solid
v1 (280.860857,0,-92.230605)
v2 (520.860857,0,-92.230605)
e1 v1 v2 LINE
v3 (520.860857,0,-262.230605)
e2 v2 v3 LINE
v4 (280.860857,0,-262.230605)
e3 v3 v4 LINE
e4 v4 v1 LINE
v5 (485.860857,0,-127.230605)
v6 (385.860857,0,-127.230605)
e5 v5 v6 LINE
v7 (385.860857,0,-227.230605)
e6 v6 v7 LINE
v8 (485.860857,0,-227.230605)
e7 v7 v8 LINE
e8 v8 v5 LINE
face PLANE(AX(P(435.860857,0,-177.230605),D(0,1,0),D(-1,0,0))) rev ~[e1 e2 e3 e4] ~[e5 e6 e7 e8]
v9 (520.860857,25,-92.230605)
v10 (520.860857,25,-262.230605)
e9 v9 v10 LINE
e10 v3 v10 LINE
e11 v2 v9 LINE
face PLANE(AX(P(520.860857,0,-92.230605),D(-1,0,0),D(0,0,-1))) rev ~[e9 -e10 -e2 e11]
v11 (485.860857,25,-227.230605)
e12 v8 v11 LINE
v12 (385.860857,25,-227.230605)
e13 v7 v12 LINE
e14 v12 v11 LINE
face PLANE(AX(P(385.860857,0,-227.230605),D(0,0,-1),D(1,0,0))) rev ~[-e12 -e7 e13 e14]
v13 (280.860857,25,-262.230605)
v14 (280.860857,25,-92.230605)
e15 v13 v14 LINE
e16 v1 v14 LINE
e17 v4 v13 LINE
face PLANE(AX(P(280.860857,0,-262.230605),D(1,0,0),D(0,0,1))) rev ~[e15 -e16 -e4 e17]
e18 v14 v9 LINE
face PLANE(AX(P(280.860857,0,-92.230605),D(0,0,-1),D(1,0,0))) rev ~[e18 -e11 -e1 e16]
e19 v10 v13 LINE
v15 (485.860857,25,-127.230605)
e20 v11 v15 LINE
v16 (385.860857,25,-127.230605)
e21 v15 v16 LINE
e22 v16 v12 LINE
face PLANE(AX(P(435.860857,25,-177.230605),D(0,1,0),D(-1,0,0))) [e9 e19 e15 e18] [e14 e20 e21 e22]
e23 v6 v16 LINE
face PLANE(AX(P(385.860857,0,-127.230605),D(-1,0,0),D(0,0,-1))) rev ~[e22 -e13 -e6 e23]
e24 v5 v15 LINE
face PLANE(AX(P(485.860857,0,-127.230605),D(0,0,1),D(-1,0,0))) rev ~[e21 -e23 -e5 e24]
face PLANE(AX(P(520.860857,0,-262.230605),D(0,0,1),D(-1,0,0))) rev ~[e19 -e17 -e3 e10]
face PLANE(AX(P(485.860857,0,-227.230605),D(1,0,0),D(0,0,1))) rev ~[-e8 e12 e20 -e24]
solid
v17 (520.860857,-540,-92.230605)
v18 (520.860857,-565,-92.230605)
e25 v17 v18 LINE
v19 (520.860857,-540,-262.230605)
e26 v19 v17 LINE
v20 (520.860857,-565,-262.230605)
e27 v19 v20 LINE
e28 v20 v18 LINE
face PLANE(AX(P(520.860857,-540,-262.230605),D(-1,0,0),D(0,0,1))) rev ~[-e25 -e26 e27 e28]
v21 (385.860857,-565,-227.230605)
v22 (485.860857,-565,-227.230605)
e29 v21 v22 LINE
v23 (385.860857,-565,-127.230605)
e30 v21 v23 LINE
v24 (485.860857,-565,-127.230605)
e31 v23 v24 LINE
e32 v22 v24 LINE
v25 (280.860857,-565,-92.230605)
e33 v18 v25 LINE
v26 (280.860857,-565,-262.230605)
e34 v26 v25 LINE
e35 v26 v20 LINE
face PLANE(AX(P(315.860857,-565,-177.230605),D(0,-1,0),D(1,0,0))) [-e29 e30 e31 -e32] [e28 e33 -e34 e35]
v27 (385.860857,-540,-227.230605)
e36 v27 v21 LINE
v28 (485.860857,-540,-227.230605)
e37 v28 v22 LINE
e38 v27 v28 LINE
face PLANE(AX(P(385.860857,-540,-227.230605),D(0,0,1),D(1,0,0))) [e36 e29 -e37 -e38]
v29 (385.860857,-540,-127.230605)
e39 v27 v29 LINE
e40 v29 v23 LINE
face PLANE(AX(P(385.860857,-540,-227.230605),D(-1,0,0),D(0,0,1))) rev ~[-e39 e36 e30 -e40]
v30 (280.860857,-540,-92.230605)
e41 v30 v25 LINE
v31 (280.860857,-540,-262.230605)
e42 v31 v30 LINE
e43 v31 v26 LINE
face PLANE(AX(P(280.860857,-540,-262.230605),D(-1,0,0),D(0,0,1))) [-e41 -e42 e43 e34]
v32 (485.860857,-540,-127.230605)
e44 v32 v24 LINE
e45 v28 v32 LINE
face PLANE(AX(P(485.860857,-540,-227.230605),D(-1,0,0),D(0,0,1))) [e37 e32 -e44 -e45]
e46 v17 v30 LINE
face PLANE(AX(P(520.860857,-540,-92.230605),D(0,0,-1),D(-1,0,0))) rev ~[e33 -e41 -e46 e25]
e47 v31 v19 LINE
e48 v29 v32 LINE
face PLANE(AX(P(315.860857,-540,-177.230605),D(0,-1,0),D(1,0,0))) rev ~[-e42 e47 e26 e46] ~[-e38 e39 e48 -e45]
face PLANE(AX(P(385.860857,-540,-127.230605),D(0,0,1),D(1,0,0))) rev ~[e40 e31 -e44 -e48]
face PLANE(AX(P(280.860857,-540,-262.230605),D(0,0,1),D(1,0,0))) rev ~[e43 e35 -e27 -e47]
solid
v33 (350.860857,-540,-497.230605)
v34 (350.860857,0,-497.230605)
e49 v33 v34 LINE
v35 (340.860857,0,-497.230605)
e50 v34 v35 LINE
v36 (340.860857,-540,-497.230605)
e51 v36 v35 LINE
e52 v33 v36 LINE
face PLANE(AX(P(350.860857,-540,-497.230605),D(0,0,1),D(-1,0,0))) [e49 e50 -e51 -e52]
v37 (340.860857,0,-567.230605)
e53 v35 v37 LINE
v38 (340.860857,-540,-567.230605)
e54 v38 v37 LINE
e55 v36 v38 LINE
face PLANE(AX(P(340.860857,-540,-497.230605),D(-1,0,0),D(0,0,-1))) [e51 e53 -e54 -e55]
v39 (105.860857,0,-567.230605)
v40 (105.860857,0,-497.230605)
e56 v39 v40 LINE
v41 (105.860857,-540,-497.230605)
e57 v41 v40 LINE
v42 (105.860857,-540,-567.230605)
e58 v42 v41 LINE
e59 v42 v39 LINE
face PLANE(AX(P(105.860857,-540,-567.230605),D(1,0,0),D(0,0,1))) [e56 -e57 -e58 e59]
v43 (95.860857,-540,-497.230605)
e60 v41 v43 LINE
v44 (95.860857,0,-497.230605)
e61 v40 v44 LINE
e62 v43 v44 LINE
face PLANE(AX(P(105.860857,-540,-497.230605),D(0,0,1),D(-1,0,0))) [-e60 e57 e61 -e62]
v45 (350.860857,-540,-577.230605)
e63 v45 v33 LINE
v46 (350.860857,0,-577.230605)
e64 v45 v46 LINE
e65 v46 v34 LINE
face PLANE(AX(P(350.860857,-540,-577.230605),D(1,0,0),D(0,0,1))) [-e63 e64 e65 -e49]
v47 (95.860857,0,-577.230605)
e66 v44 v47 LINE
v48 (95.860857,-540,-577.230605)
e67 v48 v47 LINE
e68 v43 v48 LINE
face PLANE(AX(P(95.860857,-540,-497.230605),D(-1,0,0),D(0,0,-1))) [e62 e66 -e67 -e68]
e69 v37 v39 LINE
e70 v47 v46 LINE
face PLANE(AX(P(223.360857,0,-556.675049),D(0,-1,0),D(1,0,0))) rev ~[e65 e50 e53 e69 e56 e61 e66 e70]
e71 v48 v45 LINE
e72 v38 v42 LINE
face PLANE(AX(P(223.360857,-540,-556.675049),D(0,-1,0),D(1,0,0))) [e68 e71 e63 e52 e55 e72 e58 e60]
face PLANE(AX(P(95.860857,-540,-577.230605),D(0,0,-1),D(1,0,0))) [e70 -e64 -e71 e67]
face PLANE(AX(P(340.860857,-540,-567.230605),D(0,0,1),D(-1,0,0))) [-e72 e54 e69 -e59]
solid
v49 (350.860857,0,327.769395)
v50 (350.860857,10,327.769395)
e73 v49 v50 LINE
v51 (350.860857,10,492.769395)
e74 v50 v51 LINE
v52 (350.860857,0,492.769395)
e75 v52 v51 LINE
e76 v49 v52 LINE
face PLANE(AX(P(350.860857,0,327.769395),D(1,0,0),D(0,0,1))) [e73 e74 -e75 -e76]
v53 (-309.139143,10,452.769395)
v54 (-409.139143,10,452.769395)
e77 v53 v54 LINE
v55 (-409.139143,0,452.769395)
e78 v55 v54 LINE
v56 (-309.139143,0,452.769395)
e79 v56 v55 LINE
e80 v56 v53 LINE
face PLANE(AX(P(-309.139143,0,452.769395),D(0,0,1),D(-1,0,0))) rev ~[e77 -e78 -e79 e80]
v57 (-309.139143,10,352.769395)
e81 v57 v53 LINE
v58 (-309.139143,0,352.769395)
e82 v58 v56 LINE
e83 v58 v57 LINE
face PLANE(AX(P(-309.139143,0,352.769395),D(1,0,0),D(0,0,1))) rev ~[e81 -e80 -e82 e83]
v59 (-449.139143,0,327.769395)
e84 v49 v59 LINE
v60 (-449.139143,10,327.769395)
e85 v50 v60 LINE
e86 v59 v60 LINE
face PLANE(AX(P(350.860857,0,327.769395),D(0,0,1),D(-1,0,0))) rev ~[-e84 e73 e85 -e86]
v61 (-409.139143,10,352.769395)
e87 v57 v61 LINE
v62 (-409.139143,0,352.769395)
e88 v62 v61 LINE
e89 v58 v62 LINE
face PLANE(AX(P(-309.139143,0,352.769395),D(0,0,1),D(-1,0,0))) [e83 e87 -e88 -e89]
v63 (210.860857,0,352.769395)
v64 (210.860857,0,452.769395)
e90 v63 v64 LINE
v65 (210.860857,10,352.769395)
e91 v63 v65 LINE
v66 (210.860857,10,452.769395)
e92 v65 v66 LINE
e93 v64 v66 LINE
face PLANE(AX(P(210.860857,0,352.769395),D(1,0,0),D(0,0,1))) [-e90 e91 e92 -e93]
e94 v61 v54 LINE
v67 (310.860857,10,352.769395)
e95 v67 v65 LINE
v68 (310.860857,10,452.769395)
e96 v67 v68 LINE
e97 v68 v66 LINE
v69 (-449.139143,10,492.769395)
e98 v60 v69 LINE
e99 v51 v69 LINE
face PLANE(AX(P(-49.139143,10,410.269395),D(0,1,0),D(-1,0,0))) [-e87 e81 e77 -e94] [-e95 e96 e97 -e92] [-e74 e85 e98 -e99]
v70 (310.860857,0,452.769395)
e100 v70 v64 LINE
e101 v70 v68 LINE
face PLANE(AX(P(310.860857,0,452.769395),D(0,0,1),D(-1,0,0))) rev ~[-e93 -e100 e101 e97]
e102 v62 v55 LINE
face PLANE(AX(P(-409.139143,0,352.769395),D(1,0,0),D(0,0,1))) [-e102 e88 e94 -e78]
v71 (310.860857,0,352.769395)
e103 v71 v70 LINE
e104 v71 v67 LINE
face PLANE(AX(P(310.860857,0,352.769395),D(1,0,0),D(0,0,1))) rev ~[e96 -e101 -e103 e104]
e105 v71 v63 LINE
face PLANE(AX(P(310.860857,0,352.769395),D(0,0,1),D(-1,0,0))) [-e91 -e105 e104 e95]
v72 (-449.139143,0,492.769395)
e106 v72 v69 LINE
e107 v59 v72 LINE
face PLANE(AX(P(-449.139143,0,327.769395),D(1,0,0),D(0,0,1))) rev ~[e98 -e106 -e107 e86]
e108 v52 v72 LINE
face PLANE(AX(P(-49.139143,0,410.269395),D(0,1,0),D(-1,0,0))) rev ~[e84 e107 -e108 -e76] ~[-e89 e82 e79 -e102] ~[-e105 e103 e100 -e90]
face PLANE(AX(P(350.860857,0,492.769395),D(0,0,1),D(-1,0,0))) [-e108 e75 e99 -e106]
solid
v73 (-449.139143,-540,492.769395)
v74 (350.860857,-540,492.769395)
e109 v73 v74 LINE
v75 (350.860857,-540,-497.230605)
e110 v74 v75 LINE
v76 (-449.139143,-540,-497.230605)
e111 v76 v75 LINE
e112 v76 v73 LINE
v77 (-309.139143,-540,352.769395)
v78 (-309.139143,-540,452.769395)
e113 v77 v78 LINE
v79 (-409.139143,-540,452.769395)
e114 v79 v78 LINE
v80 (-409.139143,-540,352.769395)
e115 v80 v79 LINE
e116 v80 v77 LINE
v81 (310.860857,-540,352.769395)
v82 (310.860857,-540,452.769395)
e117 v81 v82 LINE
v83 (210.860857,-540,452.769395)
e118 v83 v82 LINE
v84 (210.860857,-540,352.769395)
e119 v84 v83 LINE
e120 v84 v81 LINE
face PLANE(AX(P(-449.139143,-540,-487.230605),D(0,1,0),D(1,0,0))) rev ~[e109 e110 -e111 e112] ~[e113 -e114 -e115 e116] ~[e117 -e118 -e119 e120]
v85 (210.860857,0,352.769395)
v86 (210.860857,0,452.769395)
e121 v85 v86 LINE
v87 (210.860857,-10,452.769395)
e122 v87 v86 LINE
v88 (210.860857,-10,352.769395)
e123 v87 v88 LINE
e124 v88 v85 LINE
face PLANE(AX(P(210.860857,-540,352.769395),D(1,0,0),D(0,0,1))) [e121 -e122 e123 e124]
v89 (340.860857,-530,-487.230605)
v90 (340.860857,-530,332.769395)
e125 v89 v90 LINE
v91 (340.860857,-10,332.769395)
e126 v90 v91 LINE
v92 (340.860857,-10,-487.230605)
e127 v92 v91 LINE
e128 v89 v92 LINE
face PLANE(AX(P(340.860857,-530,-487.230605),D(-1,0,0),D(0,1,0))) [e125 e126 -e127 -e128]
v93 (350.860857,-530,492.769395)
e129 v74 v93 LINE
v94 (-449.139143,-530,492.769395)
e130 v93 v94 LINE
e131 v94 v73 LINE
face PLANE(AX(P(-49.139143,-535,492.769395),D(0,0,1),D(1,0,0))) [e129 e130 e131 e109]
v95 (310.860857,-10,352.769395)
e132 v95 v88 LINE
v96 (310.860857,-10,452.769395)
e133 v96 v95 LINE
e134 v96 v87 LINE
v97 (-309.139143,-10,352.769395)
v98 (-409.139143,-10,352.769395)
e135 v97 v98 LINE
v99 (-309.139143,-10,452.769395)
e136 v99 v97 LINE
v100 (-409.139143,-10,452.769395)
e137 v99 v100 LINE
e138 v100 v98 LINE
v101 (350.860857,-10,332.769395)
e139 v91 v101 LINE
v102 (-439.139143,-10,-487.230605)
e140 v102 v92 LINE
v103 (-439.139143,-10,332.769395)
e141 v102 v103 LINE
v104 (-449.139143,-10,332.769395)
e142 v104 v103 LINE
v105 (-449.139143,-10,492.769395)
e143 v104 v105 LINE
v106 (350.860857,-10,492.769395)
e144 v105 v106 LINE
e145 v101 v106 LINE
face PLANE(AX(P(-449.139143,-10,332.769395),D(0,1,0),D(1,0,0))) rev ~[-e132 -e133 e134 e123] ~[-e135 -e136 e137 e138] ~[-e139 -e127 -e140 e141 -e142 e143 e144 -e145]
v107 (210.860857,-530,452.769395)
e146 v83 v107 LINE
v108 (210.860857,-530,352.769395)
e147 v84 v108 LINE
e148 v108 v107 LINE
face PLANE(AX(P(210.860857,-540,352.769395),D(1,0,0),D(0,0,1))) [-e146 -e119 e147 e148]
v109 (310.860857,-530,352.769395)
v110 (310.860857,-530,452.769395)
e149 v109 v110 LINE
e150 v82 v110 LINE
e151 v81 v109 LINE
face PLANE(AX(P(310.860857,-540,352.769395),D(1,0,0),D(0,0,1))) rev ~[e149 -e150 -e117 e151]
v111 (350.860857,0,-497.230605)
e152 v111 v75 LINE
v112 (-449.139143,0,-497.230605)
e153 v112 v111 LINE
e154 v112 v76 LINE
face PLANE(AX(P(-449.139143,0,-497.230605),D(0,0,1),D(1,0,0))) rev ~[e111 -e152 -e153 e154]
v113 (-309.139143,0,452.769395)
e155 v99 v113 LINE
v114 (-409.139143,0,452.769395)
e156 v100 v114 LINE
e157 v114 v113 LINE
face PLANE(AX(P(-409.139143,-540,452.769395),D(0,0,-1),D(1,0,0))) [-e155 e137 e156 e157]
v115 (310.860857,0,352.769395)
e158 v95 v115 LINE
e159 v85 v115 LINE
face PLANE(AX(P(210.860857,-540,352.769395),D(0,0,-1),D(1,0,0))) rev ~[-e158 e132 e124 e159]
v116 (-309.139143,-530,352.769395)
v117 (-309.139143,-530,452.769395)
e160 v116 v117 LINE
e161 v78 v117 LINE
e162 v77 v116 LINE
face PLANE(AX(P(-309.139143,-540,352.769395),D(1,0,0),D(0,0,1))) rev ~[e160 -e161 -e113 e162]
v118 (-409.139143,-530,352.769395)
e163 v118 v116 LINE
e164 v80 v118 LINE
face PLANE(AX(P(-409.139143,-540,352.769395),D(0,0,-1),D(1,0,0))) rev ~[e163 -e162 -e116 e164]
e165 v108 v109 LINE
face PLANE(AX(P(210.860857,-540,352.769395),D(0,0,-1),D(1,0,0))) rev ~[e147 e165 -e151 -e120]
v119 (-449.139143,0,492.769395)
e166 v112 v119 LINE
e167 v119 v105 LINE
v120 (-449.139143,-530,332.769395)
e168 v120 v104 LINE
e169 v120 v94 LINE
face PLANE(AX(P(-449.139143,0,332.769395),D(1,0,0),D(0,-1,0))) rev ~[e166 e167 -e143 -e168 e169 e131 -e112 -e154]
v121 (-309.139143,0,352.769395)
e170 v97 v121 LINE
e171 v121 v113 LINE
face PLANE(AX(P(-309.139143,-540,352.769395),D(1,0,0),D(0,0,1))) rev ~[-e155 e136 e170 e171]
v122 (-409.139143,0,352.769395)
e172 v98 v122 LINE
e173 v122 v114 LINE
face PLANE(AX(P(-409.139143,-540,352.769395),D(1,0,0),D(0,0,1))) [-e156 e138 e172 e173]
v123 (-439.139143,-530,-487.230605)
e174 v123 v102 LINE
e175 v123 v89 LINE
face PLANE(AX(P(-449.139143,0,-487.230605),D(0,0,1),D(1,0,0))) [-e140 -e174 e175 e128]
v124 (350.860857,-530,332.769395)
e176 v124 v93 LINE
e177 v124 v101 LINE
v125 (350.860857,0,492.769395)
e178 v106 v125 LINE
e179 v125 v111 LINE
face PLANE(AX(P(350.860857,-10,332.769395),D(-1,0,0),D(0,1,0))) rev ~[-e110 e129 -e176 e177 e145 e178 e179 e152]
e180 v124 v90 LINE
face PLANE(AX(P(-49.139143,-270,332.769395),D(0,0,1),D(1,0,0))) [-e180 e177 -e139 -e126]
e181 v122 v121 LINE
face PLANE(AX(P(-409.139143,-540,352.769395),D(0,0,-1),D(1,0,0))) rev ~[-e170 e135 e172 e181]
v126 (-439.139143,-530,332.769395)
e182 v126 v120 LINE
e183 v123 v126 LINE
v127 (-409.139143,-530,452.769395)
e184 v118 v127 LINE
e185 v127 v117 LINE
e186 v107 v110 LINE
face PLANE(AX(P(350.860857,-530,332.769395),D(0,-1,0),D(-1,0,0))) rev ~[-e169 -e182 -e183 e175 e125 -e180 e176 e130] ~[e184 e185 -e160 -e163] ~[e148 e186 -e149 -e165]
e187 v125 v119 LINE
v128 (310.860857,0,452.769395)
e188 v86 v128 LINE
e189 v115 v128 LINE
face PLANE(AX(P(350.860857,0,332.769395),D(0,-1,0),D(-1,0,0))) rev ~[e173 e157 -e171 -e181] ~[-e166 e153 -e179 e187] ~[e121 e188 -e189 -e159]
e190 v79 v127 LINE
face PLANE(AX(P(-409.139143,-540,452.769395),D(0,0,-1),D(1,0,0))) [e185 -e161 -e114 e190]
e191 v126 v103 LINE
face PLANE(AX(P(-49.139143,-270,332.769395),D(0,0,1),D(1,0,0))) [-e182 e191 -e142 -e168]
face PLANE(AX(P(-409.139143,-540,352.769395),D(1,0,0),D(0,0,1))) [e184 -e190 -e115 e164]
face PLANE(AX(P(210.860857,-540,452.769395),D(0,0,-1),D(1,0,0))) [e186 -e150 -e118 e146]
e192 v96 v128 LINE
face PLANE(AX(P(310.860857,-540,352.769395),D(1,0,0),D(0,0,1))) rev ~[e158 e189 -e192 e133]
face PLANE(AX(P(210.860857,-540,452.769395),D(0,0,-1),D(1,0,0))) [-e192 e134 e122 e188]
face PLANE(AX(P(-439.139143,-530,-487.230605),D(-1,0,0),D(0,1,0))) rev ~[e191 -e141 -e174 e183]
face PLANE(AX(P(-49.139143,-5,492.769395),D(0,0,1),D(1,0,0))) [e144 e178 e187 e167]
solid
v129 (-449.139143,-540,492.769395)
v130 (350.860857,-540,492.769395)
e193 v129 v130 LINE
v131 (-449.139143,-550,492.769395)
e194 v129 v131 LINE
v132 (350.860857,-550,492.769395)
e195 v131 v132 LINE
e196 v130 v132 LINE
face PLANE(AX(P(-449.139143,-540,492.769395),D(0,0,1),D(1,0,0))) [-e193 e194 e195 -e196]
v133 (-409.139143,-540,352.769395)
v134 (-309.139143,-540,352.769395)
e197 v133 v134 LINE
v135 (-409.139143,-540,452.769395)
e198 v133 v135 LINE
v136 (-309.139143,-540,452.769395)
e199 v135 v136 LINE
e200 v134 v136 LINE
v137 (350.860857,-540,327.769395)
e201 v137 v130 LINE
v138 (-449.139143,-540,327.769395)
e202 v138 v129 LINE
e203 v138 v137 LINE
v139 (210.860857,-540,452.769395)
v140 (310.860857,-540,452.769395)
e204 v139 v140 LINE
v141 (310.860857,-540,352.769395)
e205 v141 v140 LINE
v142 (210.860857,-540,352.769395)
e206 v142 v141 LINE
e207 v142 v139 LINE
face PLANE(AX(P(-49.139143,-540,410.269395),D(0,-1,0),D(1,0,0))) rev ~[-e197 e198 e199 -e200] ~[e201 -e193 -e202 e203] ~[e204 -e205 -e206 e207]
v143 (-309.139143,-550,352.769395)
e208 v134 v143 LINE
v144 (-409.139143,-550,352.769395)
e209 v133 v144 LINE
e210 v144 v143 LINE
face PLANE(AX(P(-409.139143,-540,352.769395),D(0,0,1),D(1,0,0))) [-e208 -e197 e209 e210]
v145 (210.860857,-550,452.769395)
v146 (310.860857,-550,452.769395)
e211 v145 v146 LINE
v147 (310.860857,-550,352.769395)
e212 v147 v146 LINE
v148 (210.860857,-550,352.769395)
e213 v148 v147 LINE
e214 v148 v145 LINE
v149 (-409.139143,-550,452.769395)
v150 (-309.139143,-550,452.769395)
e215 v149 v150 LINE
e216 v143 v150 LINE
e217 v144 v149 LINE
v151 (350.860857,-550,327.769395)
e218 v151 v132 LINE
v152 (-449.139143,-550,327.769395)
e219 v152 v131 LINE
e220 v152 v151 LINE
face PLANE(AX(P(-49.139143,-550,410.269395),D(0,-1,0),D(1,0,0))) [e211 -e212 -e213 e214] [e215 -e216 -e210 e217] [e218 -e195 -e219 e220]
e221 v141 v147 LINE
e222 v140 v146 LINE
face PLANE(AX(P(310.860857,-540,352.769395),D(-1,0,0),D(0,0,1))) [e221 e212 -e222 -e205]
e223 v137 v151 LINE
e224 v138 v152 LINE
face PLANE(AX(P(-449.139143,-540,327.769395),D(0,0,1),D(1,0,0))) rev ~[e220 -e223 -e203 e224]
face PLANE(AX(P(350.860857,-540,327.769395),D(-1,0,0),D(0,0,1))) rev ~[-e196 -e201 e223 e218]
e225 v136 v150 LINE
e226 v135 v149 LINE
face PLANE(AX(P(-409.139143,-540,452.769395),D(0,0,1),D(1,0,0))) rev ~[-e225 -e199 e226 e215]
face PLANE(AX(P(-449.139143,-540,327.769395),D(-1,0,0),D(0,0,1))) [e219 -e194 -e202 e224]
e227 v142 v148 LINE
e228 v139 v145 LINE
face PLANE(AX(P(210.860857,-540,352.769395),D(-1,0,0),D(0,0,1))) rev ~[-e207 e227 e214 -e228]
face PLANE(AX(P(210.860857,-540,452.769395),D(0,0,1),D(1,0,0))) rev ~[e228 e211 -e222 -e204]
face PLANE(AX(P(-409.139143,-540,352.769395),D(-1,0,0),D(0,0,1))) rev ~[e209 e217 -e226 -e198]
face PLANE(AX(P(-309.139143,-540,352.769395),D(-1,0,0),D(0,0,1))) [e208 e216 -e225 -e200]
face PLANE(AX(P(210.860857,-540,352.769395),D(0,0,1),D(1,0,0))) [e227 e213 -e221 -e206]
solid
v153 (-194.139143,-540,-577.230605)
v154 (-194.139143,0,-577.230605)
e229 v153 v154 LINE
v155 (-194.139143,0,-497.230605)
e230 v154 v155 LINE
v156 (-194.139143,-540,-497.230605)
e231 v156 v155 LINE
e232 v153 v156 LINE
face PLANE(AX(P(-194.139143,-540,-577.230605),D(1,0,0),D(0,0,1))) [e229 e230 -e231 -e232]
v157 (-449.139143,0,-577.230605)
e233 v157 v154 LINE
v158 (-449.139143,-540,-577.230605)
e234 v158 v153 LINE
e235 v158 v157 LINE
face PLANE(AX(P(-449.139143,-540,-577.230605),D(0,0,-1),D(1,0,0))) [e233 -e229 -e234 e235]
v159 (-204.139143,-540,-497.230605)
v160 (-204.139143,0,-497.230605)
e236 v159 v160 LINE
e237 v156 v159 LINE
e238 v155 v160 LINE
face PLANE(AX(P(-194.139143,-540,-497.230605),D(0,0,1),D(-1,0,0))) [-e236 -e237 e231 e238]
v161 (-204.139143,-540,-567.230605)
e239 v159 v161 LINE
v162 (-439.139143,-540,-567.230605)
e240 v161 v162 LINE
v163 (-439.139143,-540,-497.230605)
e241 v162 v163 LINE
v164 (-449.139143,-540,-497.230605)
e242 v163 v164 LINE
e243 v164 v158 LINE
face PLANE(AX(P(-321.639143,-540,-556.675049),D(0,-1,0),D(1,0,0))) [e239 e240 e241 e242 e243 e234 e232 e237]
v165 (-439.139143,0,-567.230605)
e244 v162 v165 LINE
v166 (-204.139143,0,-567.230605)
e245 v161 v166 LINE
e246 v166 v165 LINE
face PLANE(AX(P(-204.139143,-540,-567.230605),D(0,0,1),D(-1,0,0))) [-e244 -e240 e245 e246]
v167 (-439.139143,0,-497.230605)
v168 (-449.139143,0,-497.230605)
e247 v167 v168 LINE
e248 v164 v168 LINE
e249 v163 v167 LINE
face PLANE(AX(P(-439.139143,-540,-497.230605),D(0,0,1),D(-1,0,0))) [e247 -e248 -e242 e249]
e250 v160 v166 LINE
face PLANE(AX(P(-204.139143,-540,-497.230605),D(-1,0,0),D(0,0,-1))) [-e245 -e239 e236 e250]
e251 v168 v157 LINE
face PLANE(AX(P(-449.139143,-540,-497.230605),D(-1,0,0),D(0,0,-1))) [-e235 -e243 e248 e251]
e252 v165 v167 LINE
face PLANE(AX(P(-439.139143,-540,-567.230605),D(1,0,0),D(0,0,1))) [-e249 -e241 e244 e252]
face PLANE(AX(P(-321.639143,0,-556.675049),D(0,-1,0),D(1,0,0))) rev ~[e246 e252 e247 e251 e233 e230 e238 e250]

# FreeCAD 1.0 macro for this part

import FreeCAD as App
import Part
import Sketcher

doc = App.newDocument("Part")
body = doc.addObject("PartDesign::Body", "Body")

# Sketch on XZ plane
sketch1 = doc.addObject("Sketcher::SketchObject", "Sketch")
body.addObject(sketch1)
sketch1.AttachmentSupport = (doc.XZ_Plane, [""])
sketch1.MapMode = "FlatFace"
sketch1.addGeometry(Part.LineSegment(App.Vector(-449, -487, 0), App.Vector(-449, -497, 0)), False)
sketch1.addGeometry(Part.LineSegment(App.Vector(-449, -497, 0), App.Vector(351, -497, 0)), False)
sketch1.addGeometry(Part.LineSegment(App.Vector(351, -497, 0), App.Vector(351, -487, 0)), False)
sketch1.addGeometry(Part.LineSegment(App.Vector(351, -487, 0), App.Vector(-449, -487, 0)), False)
sketch1.addConstraint(Sketcher.Constraint("Coincident", 0, 2, 1, 1))
sketch1.addConstraint(Sketcher.Constraint("Coincident", 1, 2, 2, 1))
sketch1.addConstraint(Sketcher.Constraint("Coincident", 2, 2, 3, 1))
sketch1.addConstraint(Sketcher.Constraint("Coincident", 3, 2, 0, 1))
sketch1.addConstraint(Sketcher.Constraint("Vertical", 0))
sketch1.addConstraint(Sketcher.Constraint("Horizontal", 1))
sketch1.addConstraint(Sketcher.Constraint("Vertical", 2))
sketch1.addConstraint(Sketcher.Constraint("Horizontal", 3))
sketch1.addConstraint(Sketcher.Constraint("DistanceX", 1, 1, 1, 2, 800.0))
sketch1.addConstraint(Sketcher.Constraint("DistanceY", 0, 2, 0, 1, 10.0))
sketch1.addConstraint(Sketcher.Constraint("DistanceX", 0, 2, -1, 1, 449.139143))
sketch1.addConstraint(Sketcher.Constraint("DistanceY", 0, 2, -1, 1, 497.230605))
pad1 = doc.addObject("PartDesign::Pad", "Pad")
body.addObject(pad1)
pad1.Profile = sketch1
pad1.Length = 540

# Sketch on XY plane
sketch2 = doc.addObject("Sketcher::SketchObject", "Sketch001")
body.addObject(sketch2)
sketch2.AttachmentSupport = (doc.XY_Plane, [""])
sketch2.MapMode = "FlatFace"
sketch2.AttachmentOffset = App.Placement(App.Vector(0, 0, -487.230605), App.Rotation())
sketch2.addGeometry(Part.LineSegment(App.Vector(-449, 0, 0), App.Vector(-449, -540, 0)), False)
sketch2.addGeometry(Part.LineSegment(App.Vector(-449, -540, 0), App.Vector(351, -540, 0)), False)
sketch2.addGeometry(Part.LineSegment(App.Vector(351, -540, 0), App.Vector(351, 0, 0)), False)
sketch2.addGeometry(Part.LineSegment(App.Vector(351, 0, 0), App.Vector(-449, 0, 0)), False)
sketch2.addGeometry(Part.LineSegment(App.Vector(341, -530, 0), App.Vector(-439, -530, 0)), False)
sketch2.addGeometry(Part.LineSegment(App.Vector(-439, -530, 0), App.Vector(-439, -10, 0)), False)
sketch2.addGeometry(Part.LineSegment(App.Vector(-439, -10, 0), App.Vector(341, -10, 0)), False)
sketch2.addGeometry(Part.LineSegment(App.Vector(341, -10, 0), App.Vector(341, -530, 0)), False)
sketch2.addConstraint(Sketcher.Constraint("Coincident", 0, 2, 1, 1))
sketch2.addConstraint(Sketcher.Constraint("Coincident", 1, 2, 2, 1))
sketch2.addConstraint(Sketcher.Constraint("Coincident", 2, 2, 3, 1))
sketch2.addConstraint(Sketcher.Constraint("Coincident", 3, 2, 0, 1))
sketch2.addConstraint(Sketcher.Constraint("Coincident", 4, 2, 5, 1))
sketch2.addConstraint(Sketcher.Constraint("Coincident", 5, 2, 6, 1))
sketch2.addConstraint(Sketcher.Constraint("Coincident", 6, 2, 7, 1))
sketch2.addConstraint(Sketcher.Constraint("Coincident", 7, 2, 4, 1))
sketch2.addConstraint(Sketcher.Constraint("Vertical", 0))
sketch2.addConstraint(Sketcher.Constraint("Horizontal", 1))
sketch2.addConstraint(Sketcher.Constraint("Vertical", 2))
sketch2.addConstraint(Sketcher.Constraint("Horizontal", 3))
sketch2.addConstraint(Sketcher.Constraint("Horizontal", 4))
sketch2.addConstraint(Sketcher.Constraint("Vertical", 5))
sketch2.addConstraint(Sketcher.Constraint("Horizontal", 6))
sketch2.addConstraint(Sketcher.Constraint("Vertical", 7))
sketch2.addConstraint(Sketcher.Constraint("PointOnObject", 2, 2, -1))
sketch2.addConstraint(Sketcher.Constraint("DistanceX", 1, 1, 1, 2, 800.0))
sketch2.addConstraint(Sketcher.Constraint("DistanceX", 4, 2, 4, 1, 780.0))
sketch2.addConstraint(Sketcher.Constraint("DistanceY", 0, 2, 0, 1, 540.0))
sketch2.addConstraint(Sketcher.Constraint("DistanceY", 5, 1, 5, 2, 520.0))
sketch2.addConstraint(Sketcher.Constraint("DistanceY", 4, 2, -1, 1, 530.0))
sketch2.addConstraint(Sketcher.Constraint("DistanceX", 0, 2, 4, 2, 10.0))
sketch2.addConstraint(Sketcher.Constraint("DistanceX", 0, 2, -1, 1, 449.139143))
pad2 = doc.addObject("PartDesign::Pad", "Pad001")
body.addObject(pad2)
pad2.Profile = sketch2
pad2.Length = 820

# Sketch on XY plane
sketch3 = doc.addObject("Sketcher::SketchObject", "Sketch002")
body.addObject(sketch3)
sketch3.AttachmentSupport = (doc.XY_Plane, [""])
sketch3.MapMode = "FlatFace"
sketch3.AttachmentOffset = App.Placement(App.Vector(0, 0, 332.769395), App.Rotation())
sketch3.addGeometry(Part.LineSegment(App.Vector(351, 0, 0), App.Vector(-449, 0, 0)), False)
sketch3.addGeometry(Part.LineSegment(App.Vector(-449, 0, 0), App.Vector(-449, -10, 0)), False)
sketch3.addGeometry(Part.LineSegment(App.Vector(-449, -10, 0), App.Vector(351, -10, 0)), False)
sketch3.addGeometry(Part.LineSegment(App.Vector(351, -10, 0), App.Vector(351, 0, 0)), False)
sketch3.addGeometry(Part.LineSegment(App.Vector(-449, -530, 0), App.Vector(-449, -540, 0)), False)
sketch3.addGeometry(Part.LineSegment(App.Vector(-449, -540, 0), App.Vector(351, -540, 0)), False)
sketch3.addGeometry(Part.LineSegment(App.Vector(351, -540, 0), App.Vector(351, -530, 0)), False)
sketch3.addGeometry(Part.LineSegment(App.Vector(351, -530, 0), App.Vector(-449, -530, 0)), False)
sketch3.addConstraint(Sketcher.Constraint("Coincident", 0, 2, 1, 1))
sketch3.addConstraint(Sketcher.Constraint("Coincident", 1, 2, 2, 1))
sketch3.addConstraint(Sketcher.Constraint("Coincident", 2, 2, 3, 1))
sketch3.addConstraint(Sketcher.Constraint("Coincident", 3, 2, 0, 1))
sketch3.addConstraint(Sketcher.Constraint("Coincident", 4, 2, 5, 1))
sketch3.addConstraint(Sketcher.Constraint("Coincident", 5, 2, 6, 1))
sketch3.addConstraint(Sketcher.Constraint("Coincident", 6, 2, 7, 1))
sketch3.addConstraint(Sketcher.Constraint("Coincident", 7, 2, 4, 1))
sketch3.addConstraint(Sketcher.Constraint("Horizontal", 0))
sketch3.addConstraint(Sketcher.Constraint("Vertical", 1))
sketch3.addConstraint(Sketcher.Constraint("Horizontal", 2))
sketch3.addConstraint(Sketcher.Constraint("Vertical", 3))
sketch3.addConstraint(Sketcher.Constraint("Vertical", 4))
sketch3.addConstraint(Sketcher.Constraint("Horizontal", 5))
sketch3.addConstraint(Sketcher.Constraint("Vertical", 6))
sketch3.addConstraint(Sketcher.Constraint("Horizontal", 7))
sketch3.addConstraint(Sketcher.Constraint("PointOnObject", 0, 2, -1))
sketch3.addConstraint(Sketcher.Constraint("Vertical", 1, 2, 4, 2))
sketch3.addConstraint(Sketcher.Constraint("Vertical", 3, 2, 5, 2))
sketch3.addConstraint(Sketcher.Constraint("Equal", 3, 4))
sketch3.addConstraint(Sketcher.Constraint("DistanceX", 0, 2, 0, 1, 800.0))
sketch3.addConstraint(Sketcher.Constraint("DistanceY", 1, 2, 1, 1, 10.0))
sketch3.addConstraint(Sketcher.Constraint("DistanceY", 4, 2, -1, 1, 540.0))
sketch3.addConstraint(Sketcher.Constraint("DistanceX", 0, 2, -1, 1, 449.139143))
pad3 = doc.addObject("PartDesign::Pad", "Pad002")
body.addObject(pad3)
pad3.Profile = sketch3
pad3.Length = 160

# Sketch on XZ plane
sketch4 = doc.addObject("Sketcher::SketchObject", "Sketch003")
body.addObject(sketch4)
sketch4.AttachmentSupport = (doc.XZ_Plane, [""])
sketch4.MapMode = "FlatFace"
sketch4.AttachmentOffset = App.Placement(App.Vector(0, 0, 540), App.Rotation())
sketch4.addGeometry(Part.LineSegment(App.Vector(-409, 453, 0), App.Vector(-409, 353, 0)), False)
sketch4.addGeometry(Part.LineSegment(App.Vector(-409, 353, 0), App.Vector(-309, 353, 0)), False)
sketch4.addGeometry(Part.LineSegment(App.Vector(-309, 353, 0), App.Vector(-309, 453, 0)), False)
sketch4.addGeometry(Part.LineSegment(App.Vector(-309, 453, 0), App.Vector(-409, 453, 0)), False)
sketch4.addGeometry(Part.LineSegment(App.Vector(211, 453, 0), App.Vector(211, 353, 0)), False)
sketch4.addGeometry(Part.LineSegment(App.Vector(211, 353, 0), App.Vector(311, 353, 0)), False)
sketch4.addGeometry(Part.LineSegment(App.Vector(311, 353, 0), App.Vector(311, 453, 0)), False)
sketch4.addGeometry(Part.LineSegment(App.Vector(311, 453, 0), App.Vector(211, 453, 0)), False)
sketch4.addConstraint(Sketcher.Constraint("Coincident", 0, 2, 1, 1))
sketch4.addConstraint(Sketcher.Constraint("Coincident", 1, 2, 2, 1))
sketch4.addConstraint(Sketcher.Constraint("Coincident", 2, 2, 3, 1))
sketch4.addConstraint(Sketcher.Constraint("Coincident", 3, 2, 0, 1))
sketch4.addConstraint(Sketcher.Constraint("Coincident", 4, 2, 5, 1))
sketch4.addConstraint(Sketcher.Constraint("Coincident", 5, 2, 6, 1))
sketch4.addConstraint(Sketcher.Constraint("Coincident", 6, 2, 7, 1))
sketch4.addConstraint(Sketcher.Constraint("Coincident", 7, 2, 4, 1))
sketch4.addConstraint(Sketcher.Constraint("Vertical", 0))
sketch4.addConstraint(Sketcher.Constraint("Horizontal", 1))
sketch4.addConstraint(Sketcher.Constraint("Vertical", 2))
sketch4.addConstraint(Sketcher.Constraint("Horizontal", 3))
sketch4.addConstraint(Sketcher.Constraint("Vertical", 4))
sketch4.addConstraint(Sketcher.Constraint("Horizontal", 5))
sketch4.addConstraint(Sketcher.Constraint("Vertical", 6))
sketch4.addConstraint(Sketcher.Constraint("Horizontal", 7))
sketch4.addConstraint(Sketcher.Constraint("Horizontal", 1, 2, 4, 2))
sketch4.addConstraint(Sketcher.Constraint("Horizontal", 3, 2, 6, 2))
sketch4.addConstraint(Sketcher.Constraint("Equal", 3, 5))
sketch4.addConstraint(Sketcher.Constraint("Equal", 7, 0))
sketch4.addConstraint(Sketcher.Constraint("DistanceX", 1, 1, 1, 2, 100.0))
sketch4.addConstraint(Sketcher.Constraint("DistanceX", 1, 2, 4, 2, 520.0))
sketch4.addConstraint(Sketcher.Constraint("DistanceX", 0, 2, -1, 1, 409.139143))
sketch4.addConstraint(Sketcher.Constraint("DistanceY", -1, 1, 0, 2, 352.769395))
pocket1 = doc.addObject("PartDesign::Pocket", "Pocket")
body.addObject(pocket1)
pocket1.Profile = sketch4
pocket1.Length = 918
body2 = doc.addObject("PartDesign::Body", "Body001")

# Sketch on XZ plane
sketch5 = doc.addObject("Sketcher::SketchObject", "Sketch004")
body2.addObject(sketch5)
sketch5.AttachmentSupport = (doc.getObject("XZ_Plane001"), [""])
sketch5.MapMode = "FlatFace"
sketch5.AttachmentOffset = App.Placement(App.Vector(0, 0, 540), App.Rotation())
sketch5.addGeometry(Part.LineSegment(App.Vector(-449, 493, 0), App.Vector(-449, 328, 0)), False)
sketch5.addGeometry(Part.LineSegment(App.Vector(-449, 328, 0), App.Vector(351, 328, 0)), False)
sketch5.addGeometry(Part.LineSegment(App.Vector(351, 328, 0), App.Vector(351, 493, 0)), False)
sketch5.addGeometry(Part.LineSegment(App.Vector(351, 493, 0), App.Vector(-449, 493, 0)), False)
sketch5.addGeometry(Part.LineSegment(App.Vector(-309, 353, 0), App.Vector(-409, 353, 0)), False)
sketch5.addGeometry(Part.LineSegment(App.Vector(-409, 353, 0), App.Vector(-409, 453, 0)), False)
sketch5.addGeometry(Part.LineSegment(App.Vector(-409, 453, 0), App.Vector(-309, 453, 0)), False)
sketch5.addGeometry(Part.LineSegment(App.Vector(-309, 453, 0), App.Vector(-309, 353, 0)), False)
sketch5.addGeometry(Part.LineSegment(App.Vector(311, 353, 0), App.Vector(211, 353, 0)), False)
sketch5.addGeometry(Part.LineSegment(App.Vector(211, 353, 0), App.Vector(211, 453, 0)), False)
sketch5.addGeometry(Part.LineSegment(App.Vector(211, 453, 0), App.Vector(311, 453, 0)), False)
sketch5.addGeometry(Part.LineSegment(App.Vector(311, 453, 0), App.Vector(311, 353, 0)), False)
sketch5.addConstraint(Sketcher.Constraint("Coincident", 0, 2, 1, 1))
sketch5.addConstraint(Sketcher.Constraint("Coincident", 1, 2, 2, 1))
sketch5.addConstraint(Sketcher.Constraint("Coincident", 2, 2, 3, 1))
sketch5.addConstraint(Sketcher.Constraint("Coincident", 3, 2, 0, 1))
sketch5.addConstraint(Sketcher.Constraint("Coincident", 4, 2, 5, 1))
sketch5.addConstraint(Sketcher.Constraint("Coincident", 5, 2, 6, 1))
sketch5.addConstraint(Sketcher.Constraint("Coincident", 6, 2, 7, 1))
sketch5.addConstraint(Sketcher.Constraint("Coincident", 7, 2, 4, 1))
sketch5.addConstraint(Sketcher.Constraint("Coincident", 8, 2, 9, 1))
sketch5.addConstraint(Sketcher.Constraint("Coincident", 9, 2, 10, 1))
sketch5.addConstraint(Sketcher.Constraint("Coincident", 10, 2, 11, 1))
sketch5.addConstraint(Sketcher.Constraint("Coincident", 11, 2, 8, 1))
sketch5.addConstraint(Sketcher.Constraint("Vertical", 0))
sketch5.addConstraint(Sketcher.Constraint("Horizontal", 1))
sketch5.addConstraint(Sketcher.Constraint("Vertical", 2))
sketch5.addConstraint(Sketcher.Constraint("Horizontal", 3))
sketch5.addConstraint(Sketcher.Constraint("Horizontal", 4))
sketch5.addConstraint(Sketcher.Constraint("Vertical", 5))
sketch5.addConstraint(Sketcher.Constraint("Horizontal", 6))
sketch5.addConstraint(Sketcher.Constraint("Vertical", 7))
sketch5.addConstraint(Sketcher.Constraint("Horizontal", 8))
sketch5.addConstraint(Sketcher.Constraint("Vertical", 9))
sketch5.addConstraint(Sketcher.Constraint("Horizontal", 10))
sketch5.addConstraint(Sketcher.Constraint("Vertical", 11))
sketch5.addConstraint(Sketcher.Constraint("Horizontal", 7, 2, 8, 2))
sketch5.addConstraint(Sketcher.Constraint("Horizontal", 6, 2, 9, 2))
sketch5.addConstraint(Sketcher.Constraint("Equal", 6, 8))
sketch5.addConstraint(Sketcher.Constraint("Equal", 10, 5))
sketch5.addConstraint(Sketcher.Constraint("DistanceX", 1, 1, 1, 2, 800.0))
sketch5.addConstraint(Sketcher.Constraint("DistanceX", 4, 2, 4, 1, 100.0))
sketch5.addConstraint(Sketcher.Constraint("DistanceY", 0, 2, 0, 1, 165.0))
sketch5.addConstraint(Sketcher.Constraint("DistanceX", 0, 2, 4, 2, 40.0))
sketch5.addConstraint(Sketcher.Constraint("DistanceY", 0, 2, 4, 2, 25.0))
sketch5.addConstraint(Sketcher.Constraint("DistanceX", 8, 2, 1, 2, 140.0))
sketch5.addConstraint(Sketcher.Constraint("DistanceX", 0, 2, -1, 1, 449.139143))
sketch5.addConstraint(Sketcher.Constraint("DistanceY", -1, 1, 0, 2, 327.769395))
pad4 = doc.addObject("PartDesign::Pad", "Pad003")
body2.addObject(pad4)
pad4.Profile = sketch5
pad4.Length = 10
body3 = doc.addObject("PartDesign::Body", "Body002")

# Sketch on XZ plane
sketch6 = doc.addObject("Sketcher::SketchObject", "Sketch005")
body3.addObject(sketch6)
sketch6.AttachmentSupport = (doc.getObject("XZ_Plane002"), [""])
sketch6.MapMode = "FlatFace"
sketch6.addGeometry(Part.LineSegment(App.Vector(351, 493, 0), App.Vector(351, 328, 0)), False)
sketch6.addGeometry(Part.LineSegment(App.Vector(351, 328, 0), App.Vector(-449, 328, 0)), False)
sketch6.addGeometry(Part.LineSegment(App.Vector(-449, 328, 0), App.Vector(-449, 493, 0)), False)
sketch6.addGeometry(Part.LineSegment(App.Vector(-449, 493, 0), App.Vector(351, 493, 0)), False)
sketch6.addGeometry(Part.LineSegment(App.Vector(211, 353, 0), App.Vector(311, 353, 0)), False)
sketch6.addGeometry(Part.LineSegment(App.Vector(311, 353, 0), App.Vector(311, 453, 0)), False)
sketch6.addGeometry(Part.LineSegment(App.Vector(311, 453, 0), App.Vector(211, 453, 0)), False)
sketch6.addGeometry(Part.LineSegment(App.Vector(211, 453, 0), App.Vector(211, 353, 0)), False)
sketch6.addGeometry(Part.LineSegment(App.Vector(-409, 353, 0), App.Vector(-309, 353, 0)), False)
sketch6.addGeometry(Part.LineSegment(App.Vector(-309, 353, 0), App.Vector(-309, 453, 0)), False)
sketch6.addGeometry(Part.LineSegment(App.Vector(-309, 453, 0), App.Vector(-409, 453, 0)), False)
sketch6.addGeometry(Part.LineSegment(App.Vector(-409, 453, 0), App.Vector(-409, 353, 0)), False)
sketch6.addConstraint(Sketcher.Constraint("Coincident", 0, 2, 1, 1))
sketch6.addConstraint(Sketcher.Constraint("Coincident", 1, 2, 2, 1))
sketch6.addConstraint(Sketcher.Constraint("Coincident", 2, 2, 3, 1))
sketch6.addConstraint(Sketcher.Constraint("Coincident", 3, 2, 0, 1))
sketch6.addConstraint(Sketcher.Constraint("Coincident", 4, 2, 5, 1))
sketch6.addConstraint(Sketcher.Constraint("Coincident", 5, 2, 6, 1))
sketch6.addConstraint(Sketcher.Constraint("Coincident", 6, 2, 7, 1))
sketch6.addConstraint(Sketcher.Constraint("Coincident", 7, 2, 4, 1))
sketch6.addConstraint(Sketcher.Constraint("Coincident", 8, 2, 9, 1))
sketch6.addConstraint(Sketcher.Constraint("Coincident", 9, 2, 10, 1))
sketch6.addConstraint(Sketcher.Constraint("Coincident", 10, 2, 11, 1))
sketch6.addConstraint(Sketcher.Constraint("Coincident", 11, 2, 8, 1))
sketch6.addConstraint(Sketcher.Constraint("Vertical", 0))
sketch6.addConstraint(Sketcher.Constraint("Horizontal", 1))
sketch6.addConstraint(Sketcher.Constraint("Vertical", 2))
sketch6.addConstraint(Sketcher.Constraint("Horizontal", 3))
sketch6.addConstraint(Sketcher.Constraint("Horizontal", 4))
sketch6.addConstraint(Sketcher.Constraint("Vertical", 5))
sketch6.addConstraint(Sketcher.Constraint("Horizontal", 6))
sketch6.addConstraint(Sketcher.Constraint("Vertical", 7))
sketch6.addConstraint(Sketcher.Constraint("Horizontal", 8))
sketch6.addConstraint(Sketcher.Constraint("Vertical", 9))
sketch6.addConstraint(Sketcher.Constraint("Horizontal", 10))
sketch6.addConstraint(Sketcher.Constraint("Vertical", 11))
sketch6.addConstraint(Sketcher.Constraint("Horizontal", 7, 2, 8, 2))
sketch6.addConstraint(Sketcher.Constraint("Horizontal", 6, 2, 9, 2))
sketch6.addConstraint(Sketcher.Constraint("Equal", 6, 8))
sketch6.addConstraint(Sketcher.Constraint("Equal", 10, 5))
sketch6.addConstraint(Sketcher.Constraint("DistanceX", 1, 2, 1, 1, 800.0))
sketch6.addConstraint(Sketcher.Constraint("DistanceX", 4, 1, 4, 2, 100.0))
sketch6.addConstraint(Sketcher.Constraint("DistanceY", 0, 2, 0, 1, 165.0))
sketch6.addConstraint(Sketcher.Constraint("DistanceX", 4, 2, 0, 2, 40.0))
sketch6.addConstraint(Sketcher.Constraint("DistanceY", 0, 2, 4, 2, 25.0))
sketch6.addConstraint(Sketcher.Constraint("DistanceX", 1, 2, 8, 2, 140.0))
sketch6.addConstraint(Sketcher.Constraint("DistanceX", -1, 1, 0, 2, 350.860857))
sketch6.addConstraint(Sketcher.Constraint("DistanceY", -1, 1, 0, 2, 327.769395))
pad5 = doc.addObject("PartDesign::Pad", "Pad004")
body3.addObject(pad5)
pad5.Profile = sketch6
pad5.Length = 10
pad5.Reversed = True
body4 = doc.addObject("PartDesign::Body", "Body003")
body4.AllowCompound = True

# Sketch on XZ plane
sketch7 = doc.addObject("Sketcher::SketchObject", "Sketch006")
body4.addObject(sketch7)
sketch7.AttachmentSupport = (doc.getObject("XZ_Plane003"), [""])
sketch7.MapMode = "FlatFace"
sketch7.AttachmentOffset = App.Placement(App.Vector(0, 0, 540), App.Rotation())
sketch7.addGeometry(Part.LineSegment(App.Vector(-439, -497, 0), App.Vector(-449, -497, 0)), False)
sketch7.addGeometry(Part.LineSegment(App.Vector(-449, -497, 0), App.Vector(-449, -577, 0)), False)
sketch7.addGeometry(Part.LineSegment(App.Vector(-449, -577, 0), App.Vector(-194, -577, 0)), False)
sketch7.addGeometry(Part.LineSegment(App.Vector(-194, -577, 0), App.Vector(-194, -497, 0)), False)
sketch7.addGeometry(Part.LineSegment(App.Vector(-194, -497, 0), App.Vector(-204, -497, 0)), False)
sketch7.addGeometry(Part.LineSegment(App.Vector(-204, -497, 0), App.Vector(-204, -567, 0)), False)
sketch7.addGeometry(Part.LineSegment(App.Vector(-204, -567, 0), App.Vector(-439, -567, 0)), False)
sketch7.addGeometry(Part.LineSegment(App.Vector(-439, -567, 0), App.Vector(-439, -497, 0)), False)
sketch7.addGeometry(Part.LineSegment(App.Vector(351, -577, 0), App.Vector(351, -497, 0)), False)
sketch7.addGeometry(Part.LineSegment(App.Vector(351, -497, 0), App.Vector(341, -497, 0)), False)
sketch7.addGeometry(Part.LineSegment(App.Vector(341, -497, 0), App.Vector(341, -567, 0)), False)
sketch7.addGeometry(Part.LineSegment(App.Vector(341, -567, 0), App.Vector(106, -567, 0)), False)
sketch7.addGeometry(Part.LineSegment(App.Vector(106, -567, 0), App.Vector(106, -497, 0)), False)
sketch7.addGeometry(Part.LineSegment(App.Vector(106, -497, 0), App.Vector(96, -497, 0)), False)
sketch7.addGeometry(Part.LineSegment(App.Vector(96, -497, 0), App.Vector(96, -577, 0)), False)
sketch7.addGeometry(Part.LineSegment(App.Vector(96, -577, 0), App.Vector(351, -577, 0)), False)
sketch7.addConstraint(Sketcher.Constraint("Coincident", 0, 2, 1, 1))
sketch7.addConstraint(Sketcher.Constraint("Coincident", 1, 2, 2, 1))
sketch7.addConstraint(Sketcher.Constraint("Coincident", 2, 2, 3, 1))
sketch7.addConstraint(Sketcher.Constraint("Coincident", 3, 2, 4, 1))
sketch7.addConstraint(Sketcher.Constraint("Coincident", 4, 2, 5, 1))
sketch7.addConstraint(Sketcher.Constraint("Coincident", 5, 2, 6, 1))
sketch7.addConstraint(Sketcher.Constraint("Coincident", 6, 2, 7, 1))
sketch7.addConstraint(Sketcher.Constraint("Coincident", 7, 2, 0, 1))
sketch7.addConstraint(Sketcher.Constraint("Coincident", 8, 2, 9, 1))
sketch7.addConstraint(Sketcher.Constraint("Coincident", 9, 2, 10, 1))
sketch7.addConstraint(Sketcher.Constraint("Coincident", 10, 2, 11, 1))
sketch7.addConstraint(Sketcher.Constraint("Coincident", 11, 2, 12, 1))
sketch7.addConstraint(Sketcher.Constraint("Coincident", 12, 2, 13, 1))
sketch7.addConstraint(Sketcher.Constraint("Coincident", 13, 2, 14, 1))
sketch7.addConstraint(Sketcher.Constraint("Coincident", 14, 2, 15, 1))
sketch7.addConstraint(Sketcher.Constraint("Coincident", 15, 2, 8, 1))
sketch7.addConstraint(Sketcher.Constraint("Horizontal", 0))
sketch7.addConstraint(Sketcher.Constraint("Vertical", 1))
sketch7.addConstraint(Sketcher.Constraint("Horizontal", 2))
sketch7.addConstraint(Sketcher.Constraint("Vertical", 3))
sketch7.addConstraint(Sketcher.Constraint("Horizontal", 4))
sketch7.addConstraint(Sketcher.Constraint("Vertical", 5))
sketch7.addConstraint(Sketcher.Constraint("Horizontal", 6))
sketch7.addConstraint(Sketcher.Constraint("Vertical", 7))
sketch7.addConstraint(Sketcher.Constraint("Vertical", 8))
sketch7.addConstraint(Sketcher.Constraint("Horizontal", 9))
sketch7.addConstraint(Sketcher.Constraint("Vertical", 10))
sketch7.addConstraint(Sketcher.Constraint("Horizontal", 11))
sketch7.addConstraint(Sketcher.Constraint("Vertical", 12))
sketch7.addConstraint(Sketcher.Constraint("Horizontal", 13))
sketch7.addConstraint(Sketcher.Constraint("Vertical", 14))
sketch7.addConstraint(Sketcher.Constraint("Horizontal", 15))
sketch7.addConstraint(Sketcher.Constraint("Horizontal", 0, 2, 3, 2))
sketch7.addConstraint(Sketcher.Constraint("Horizontal", 7, 2, 8, 2))
sketch7.addConstraint(Sketcher.Constraint("Horizontal", 6, 2, 10, 2))
sketch7.addConstraint(Sketcher.Constraint("Horizontal", 9, 2, 12, 2))
sketch7.addConstraint(Sketcher.Constraint("Horizontal", 2, 2, 14, 2))
sketch7.addConstraint(Sketcher.Constraint("Equal", 0, 4))
sketch7.addConstraint(Sketcher.Constraint("Equal", 4, 9))
sketch7.addConstraint(Sketcher.Constraint("Equal", 6, 11))
sketch7.addConstraint(Sketcher.Constraint("Equal", 9, 13))
sketch7.addConstraint(Sketcher.Constraint("DistanceX", 0, 2, 0, 1, 10.0))
sketch7.addConstraint(Sketcher.Constraint("DistanceX", 2, 1, 2, 2, 255.0))
sketch7.addConstraint(Sketcher.Constraint("DistanceY", 1, 2, 1, 1, 80.0))
sketch7.addConstraint(Sketcher.Constraint("DistanceY", 5, 2, 5, 1, 70.0))
sketch7.addConstraint(Sketcher.Constraint("DistanceX", 3, 2, 8, 2, 545.0))
sketch7.addConstraint(Sketcher.Constraint("DistanceX", 0, 2, -1, 1, 449.139143))
sketch7.addConstraint(Sketcher.Constraint("DistanceY", 0, 2, -1, 1, 497.230605))
pad6 = doc.addObject("PartDesign::Pad", "Pad005")
body4.addObject(pad6)
pad6.Profile = sketch7
pad6.Length = 540
pad6.Reversed = True
body5 = doc.addObject("PartDesign::Body", "Body004")

# Sketch on XZ plane
sketch8 = doc.addObject("Sketcher::SketchObject", "Sketch007")
body5.addObject(sketch8)
sketch8.AttachmentSupport = (doc.getObject("XZ_Plane004"), [""])
sketch8.MapMode = "FlatFace"
sketch8.addGeometry(Part.LineSegment(App.Vector(521, -262, 0), App.Vector(281, -262, 0)), False)
sketch8.addGeometry(Part.LineSegment(App.Vector(281, -262, 0), App.Vector(281, -92, 0)), False)
sketch8.addGeometry(Part.LineSegment(App.Vector(281, -92, 0), App.Vector(521, -92, 0)), False)
sketch8.addGeometry(Part.LineSegment(App.Vector(521, -92, 0), App.Vector(521, -262, 0)), False)
sketch8.addGeometry(Part.LineSegment(App.Vector(486, -227, 0), App.Vector(486, -127, 0)), False)
sketch8.addGeometry(Part.LineSegment(App.Vector(486, -127, 0), App.Vector(386, -127, 0)), False)
sketch8.addGeometry(Part.LineSegment(App.Vector(386, -127, 0), App.Vector(386, -227, 0)), False)
sketch8.addGeometry(Part.LineSegment(App.Vector(386, -227, 0), App.Vector(486, -227, 0)), False)
sketch8.addConstraint(Sketcher.Constraint("Coincident", 0, 2, 1, 1))
sketch8.addConstraint(Sketcher.Constraint("Coincident", 1, 2, 2, 1))
sketch8.addConstraint(Sketcher.Constraint("Coincident", 2, 2, 3, 1))
sketch8.addConstraint(Sketcher.Constraint("Coincident", 3, 2, 0, 1))
sketch8.addConstraint(Sketcher.Constraint("Coincident", 4, 2, 5, 1))
sketch8.addConstraint(Sketcher.Constraint("Coincident", 5, 2, 6, 1))
sketch8.addConstraint(Sketcher.Constraint("Coincident", 6, 2, 7, 1))
sketch8.addConstraint(Sketcher.Constraint("Coincident", 7, 2, 4, 1))
sketch8.addConstraint(Sketcher.Constraint("Horizontal", 0))
sketch8.addConstraint(Sketcher.Constraint("Vertical", 1))
sketch8.addConstraint(Sketcher.Constraint("Horizontal", 2))
sketch8.addConstraint(Sketcher.Constraint("Vertical", 3))
sketch8.addConstraint(Sketcher.Constraint("Vertical", 4))
sketch8.addConstraint(Sketcher.Constraint("Horizontal", 5))
sketch8.addConstraint(Sketcher.Constraint("Vertical", 6))
sketch8.addConstraint(Sketcher.Constraint("Horizontal", 7))
sketch8.addConstraint(Sketcher.Constraint("Equal", 7, 4))
sketch8.addConstraint(Sketcher.Constraint("DistanceX", 0, 2, 0, 1, 240.0))
sketch8.addConstraint(Sketcher.Constraint("DistanceX", 5, 2, 5, 1, 100.0))
sketch8.addConstraint(Sketcher.Constraint("DistanceY", 1, 1, 1, 2, 170.0))
sketch8.addConstraint(Sketcher.Constraint("DistanceX", 4, 2, 2, 2, 35.0))
sketch8.addConstraint(Sketcher.Constraint("DistanceY", 4, 2, 2, 2, 35.0))
sketch8.addConstraint(Sketcher.Constraint("DistanceX", -1, 1, 0, 2, 280.860857))
sketch8.addConstraint(Sketcher.Constraint("DistanceY", 0, 2, -1, 1, 262.230605))
pad7 = doc.addObject("PartDesign::Pad", "Pad006")
body5.addObject(pad7)
pad7.Profile = sketch8
pad7.Length = 25
pad7.Reversed = True
body6 = doc.addObject("PartDesign::Body", "Body005")

# Sketch on XZ plane
sketch9 = doc.addObject("Sketcher::SketchObject", "Sketch008")
body6.addObject(sketch9)
sketch9.AttachmentSupport = (doc.getObject("XZ_Plane005"), [""])
sketch9.MapMode = "FlatFace"
sketch9.AttachmentOffset = App.Placement(App.Vector(0, 0, 540), App.Rotation())
sketch9.addGeometry(Part.LineSegment(App.Vector(281, -92, 0), App.Vector(281, -262, 0)), False)
sketch9.addGeometry(Part.LineSegment(App.Vector(281, -262, 0), App.Vector(521, -262, 0)), False)
sketch9.addGeometry(Part.LineSegment(App.Vector(521, -262, 0), App.Vector(521, -92, 0)), False)
sketch9.addGeometry(Part.LineSegment(App.Vector(521, -92, 0), App.Vector(281, -92, 0)), False)
sketch9.addGeometry(Part.LineSegment(App.Vector(486, -227, 0), App.Vector(386, -227, 0)), False)
sketch9.addGeometry(Part.LineSegment(App.Vector(386, -227, 0), App.Vector(386, -127, 0)), False)
sketch9.addGeometry(Part.LineSegment(App.Vector(386, -127, 0), App.Vector(486, -127, 0)), False)
sketch9.addGeometry(Part.LineSegment(App.Vector(486, -127, 0), App.Vector(486, -227, 0)), False)
sketch9.addConstraint(Sketcher.Constraint("Coincident", 0, 2, 1, 1))
sketch9.addConstraint(Sketcher.Constraint("Coincident", 1, 2, 2, 1))
sketch9.addConstraint(Sketcher.Constraint("Coincident", 2, 2, 3, 1))
sketch9.addConstraint(Sketcher.Constraint("Coincident", 3, 2, 0, 1))
sketch9.addConstraint(Sketcher.Constraint("Coincident", 4, 2, 5, 1))
sketch9.addConstraint(Sketcher.Constraint("Coincident", 5, 2, 6, 1))
sketch9.addConstraint(Sketcher.Constraint("Coincident", 6, 2, 7, 1))
sketch9.addConstraint(Sketcher.Constraint("Coincident", 7, 2, 4, 1))
sketch9.addConstraint(Sketcher.Constraint("Vertical", 0))
sketch9.addConstraint(Sketcher.Constraint("Horizontal", 1))
sketch9.addConstraint(Sketcher.Constraint("Vertical", 2))
sketch9.addConstraint(Sketcher.Constraint("Horizontal", 3))
sketch9.addConstraint(Sketcher.Constraint("Horizontal", 4))
sketch9.addConstraint(Sketcher.Constraint("Vertical", 5))
sketch9.addConstraint(Sketcher.Constraint("Horizontal", 6))
sketch9.addConstraint(Sketcher.Constraint("Vertical", 7))
sketch9.addConstraint(Sketcher.Constraint("Equal", 6, 5))
sketch9.addConstraint(Sketcher.Constraint("DistanceX", 1, 1, 1, 2, 240.0))
sketch9.addConstraint(Sketcher.Constraint("DistanceX", 4, 2, 4, 1, 100.0))
sketch9.addConstraint(Sketcher.Constraint("DistanceY", 0, 2, 0, 1, 170.0))
sketch9.addConstraint(Sketcher.Constraint("DistanceX", 0, 2, 4, 2, 105.0))
sketch9.addConstraint(Sketcher.Constraint("DistanceY", 0, 2, 4, 2, 35.0))
sketch9.addConstraint(Sketcher.Constraint("DistanceX", -1, 1, 0, 2, 280.860857))
sketch9.addConstraint(Sketcher.Constraint("DistanceY", 0, 2, -1, 1, 262.230605))
pad8 = doc.addObject("PartDesign::Pad", "Pad007")
body6.addObject(pad8)
pad8.Profile = sketch9
pad8.Length = 25

doc.recompute()
